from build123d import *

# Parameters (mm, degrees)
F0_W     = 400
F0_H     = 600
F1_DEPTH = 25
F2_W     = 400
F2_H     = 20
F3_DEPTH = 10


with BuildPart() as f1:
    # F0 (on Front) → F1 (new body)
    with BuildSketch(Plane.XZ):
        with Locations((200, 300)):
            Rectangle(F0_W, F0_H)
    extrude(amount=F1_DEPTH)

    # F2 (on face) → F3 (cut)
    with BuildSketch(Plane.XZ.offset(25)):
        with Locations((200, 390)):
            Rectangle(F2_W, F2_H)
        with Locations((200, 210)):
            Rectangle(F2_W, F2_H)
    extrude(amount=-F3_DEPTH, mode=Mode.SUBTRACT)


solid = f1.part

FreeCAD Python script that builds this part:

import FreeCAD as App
import Part
import Sketcher

V = App.Vector
Q = App.Units.Quantity


def add_polygon(sketch, points):
    """Adds a closed chain of lines whose ends are joined by coincident constraints."""
    first, n = sketch.GeometryCount, len(points)
    for a, b in zip(points, points[1:] + points[:1]):
        sketch.addGeometry(Part.LineSegment(App.Vector(*a, 0), App.Vector(*b, 0)), False)
    for i in range(n):
        sketch.addConstraint(Sketcher.Constraint("Coincident", first + i, 2, first + (i + 1) % n, 1))

doc = App.newDocument("Part")
body = doc.addObject("PartDesign::Body", "Body")

# Sketch on XZ plane
sketch1 = body.newObject("Sketcher::SketchObject", "Sketch")
sketch1.AttachmentSupport = (doc.getObject("XZ_Plane"), [""])
sketch1.MapMode = "FlatFace"
add_polygon(sketch1, [(0, 600), (0, 0), (400, 0), (400, 600)])  # lines 0-3
sketch1.addConstraint([
    Sketcher.Constraint("Vertical", 0),
    Sketcher.Constraint("Horizontal", 1),
    Sketcher.Constraint("Vertical", 2),
    Sketcher.Constraint("Horizontal", 3),
    Sketcher.Constraint("Coincident", 0, 2, -1, 1),
    Sketcher.Constraint("DistanceX", 1, 1, 1, 2, Q("400 mm")),
    Sketcher.Constraint("DistanceY", 0, 2, 0, 1, Q("600 mm")),
])
pad1 = body.newObject("PartDesign::Pad", "Pad")
pad1.Profile = sketch1
pad1.Length = 25

# Sketch on XZ plane
sketch2 = body.newObject("Sketcher::SketchObject", "Sketch001")
sketch2.AttachmentSupport = (doc.getObject("XZ_Plane"), [""])
sketch2.MapMode = "FlatFace"
sketch2.AttachmentOffset = App.Placement(V(0, 0, 25), App.Rotation())
add_polygon(sketch2, [(0, 400), (0, 380), (400, 380), (400, 400)])  # lines 0-3
add_polygon(sketch2, [(0, 220), (0, 200), (400, 200), (400, 220)])  # lines 4-7
sketch2.addConstraint([
    Sketcher.Constraint("Vertical", 0),
    Sketcher.Constraint("Horizontal", 1),
    Sketcher.Constraint("Vertical", 2),
    Sketcher.Constraint("Horizontal", 3),
    Sketcher.Constraint("Vertical", 4),
    Sketcher.Constraint("Horizontal", 5),
    Sketcher.Constraint("Vertical", 6),
    Sketcher.Constraint("Horizontal", 7),
    Sketcher.Constraint("PointOnObject", 0, 2, -2),
    Sketcher.Constraint("PointOnObject", 4, 2, -2),
    Sketcher.Constraint("Vertical", 2, 2, 5, 2),
    Sketcher.Constraint("Equal", 2, 4),
    Sketcher.Constraint("DistanceX", 1, 1, 1, 2, Q("400 mm")),
    Sketcher.Constraint("DistanceY", 0, 2, 0, 1, Q("20 mm")),
    Sketcher.Constraint("DistanceY", -1, 1, 0, 2, Q("380 mm")),
    Sketcher.Constraint("DistanceY", -1, 1, 4, 2, Q("200 mm")),
])
pocket1 = body.newObject("PartDesign::Pocket", "Pocket")
pocket1.Profile = sketch2
pocket1.Length = 10

doc.recompute()
